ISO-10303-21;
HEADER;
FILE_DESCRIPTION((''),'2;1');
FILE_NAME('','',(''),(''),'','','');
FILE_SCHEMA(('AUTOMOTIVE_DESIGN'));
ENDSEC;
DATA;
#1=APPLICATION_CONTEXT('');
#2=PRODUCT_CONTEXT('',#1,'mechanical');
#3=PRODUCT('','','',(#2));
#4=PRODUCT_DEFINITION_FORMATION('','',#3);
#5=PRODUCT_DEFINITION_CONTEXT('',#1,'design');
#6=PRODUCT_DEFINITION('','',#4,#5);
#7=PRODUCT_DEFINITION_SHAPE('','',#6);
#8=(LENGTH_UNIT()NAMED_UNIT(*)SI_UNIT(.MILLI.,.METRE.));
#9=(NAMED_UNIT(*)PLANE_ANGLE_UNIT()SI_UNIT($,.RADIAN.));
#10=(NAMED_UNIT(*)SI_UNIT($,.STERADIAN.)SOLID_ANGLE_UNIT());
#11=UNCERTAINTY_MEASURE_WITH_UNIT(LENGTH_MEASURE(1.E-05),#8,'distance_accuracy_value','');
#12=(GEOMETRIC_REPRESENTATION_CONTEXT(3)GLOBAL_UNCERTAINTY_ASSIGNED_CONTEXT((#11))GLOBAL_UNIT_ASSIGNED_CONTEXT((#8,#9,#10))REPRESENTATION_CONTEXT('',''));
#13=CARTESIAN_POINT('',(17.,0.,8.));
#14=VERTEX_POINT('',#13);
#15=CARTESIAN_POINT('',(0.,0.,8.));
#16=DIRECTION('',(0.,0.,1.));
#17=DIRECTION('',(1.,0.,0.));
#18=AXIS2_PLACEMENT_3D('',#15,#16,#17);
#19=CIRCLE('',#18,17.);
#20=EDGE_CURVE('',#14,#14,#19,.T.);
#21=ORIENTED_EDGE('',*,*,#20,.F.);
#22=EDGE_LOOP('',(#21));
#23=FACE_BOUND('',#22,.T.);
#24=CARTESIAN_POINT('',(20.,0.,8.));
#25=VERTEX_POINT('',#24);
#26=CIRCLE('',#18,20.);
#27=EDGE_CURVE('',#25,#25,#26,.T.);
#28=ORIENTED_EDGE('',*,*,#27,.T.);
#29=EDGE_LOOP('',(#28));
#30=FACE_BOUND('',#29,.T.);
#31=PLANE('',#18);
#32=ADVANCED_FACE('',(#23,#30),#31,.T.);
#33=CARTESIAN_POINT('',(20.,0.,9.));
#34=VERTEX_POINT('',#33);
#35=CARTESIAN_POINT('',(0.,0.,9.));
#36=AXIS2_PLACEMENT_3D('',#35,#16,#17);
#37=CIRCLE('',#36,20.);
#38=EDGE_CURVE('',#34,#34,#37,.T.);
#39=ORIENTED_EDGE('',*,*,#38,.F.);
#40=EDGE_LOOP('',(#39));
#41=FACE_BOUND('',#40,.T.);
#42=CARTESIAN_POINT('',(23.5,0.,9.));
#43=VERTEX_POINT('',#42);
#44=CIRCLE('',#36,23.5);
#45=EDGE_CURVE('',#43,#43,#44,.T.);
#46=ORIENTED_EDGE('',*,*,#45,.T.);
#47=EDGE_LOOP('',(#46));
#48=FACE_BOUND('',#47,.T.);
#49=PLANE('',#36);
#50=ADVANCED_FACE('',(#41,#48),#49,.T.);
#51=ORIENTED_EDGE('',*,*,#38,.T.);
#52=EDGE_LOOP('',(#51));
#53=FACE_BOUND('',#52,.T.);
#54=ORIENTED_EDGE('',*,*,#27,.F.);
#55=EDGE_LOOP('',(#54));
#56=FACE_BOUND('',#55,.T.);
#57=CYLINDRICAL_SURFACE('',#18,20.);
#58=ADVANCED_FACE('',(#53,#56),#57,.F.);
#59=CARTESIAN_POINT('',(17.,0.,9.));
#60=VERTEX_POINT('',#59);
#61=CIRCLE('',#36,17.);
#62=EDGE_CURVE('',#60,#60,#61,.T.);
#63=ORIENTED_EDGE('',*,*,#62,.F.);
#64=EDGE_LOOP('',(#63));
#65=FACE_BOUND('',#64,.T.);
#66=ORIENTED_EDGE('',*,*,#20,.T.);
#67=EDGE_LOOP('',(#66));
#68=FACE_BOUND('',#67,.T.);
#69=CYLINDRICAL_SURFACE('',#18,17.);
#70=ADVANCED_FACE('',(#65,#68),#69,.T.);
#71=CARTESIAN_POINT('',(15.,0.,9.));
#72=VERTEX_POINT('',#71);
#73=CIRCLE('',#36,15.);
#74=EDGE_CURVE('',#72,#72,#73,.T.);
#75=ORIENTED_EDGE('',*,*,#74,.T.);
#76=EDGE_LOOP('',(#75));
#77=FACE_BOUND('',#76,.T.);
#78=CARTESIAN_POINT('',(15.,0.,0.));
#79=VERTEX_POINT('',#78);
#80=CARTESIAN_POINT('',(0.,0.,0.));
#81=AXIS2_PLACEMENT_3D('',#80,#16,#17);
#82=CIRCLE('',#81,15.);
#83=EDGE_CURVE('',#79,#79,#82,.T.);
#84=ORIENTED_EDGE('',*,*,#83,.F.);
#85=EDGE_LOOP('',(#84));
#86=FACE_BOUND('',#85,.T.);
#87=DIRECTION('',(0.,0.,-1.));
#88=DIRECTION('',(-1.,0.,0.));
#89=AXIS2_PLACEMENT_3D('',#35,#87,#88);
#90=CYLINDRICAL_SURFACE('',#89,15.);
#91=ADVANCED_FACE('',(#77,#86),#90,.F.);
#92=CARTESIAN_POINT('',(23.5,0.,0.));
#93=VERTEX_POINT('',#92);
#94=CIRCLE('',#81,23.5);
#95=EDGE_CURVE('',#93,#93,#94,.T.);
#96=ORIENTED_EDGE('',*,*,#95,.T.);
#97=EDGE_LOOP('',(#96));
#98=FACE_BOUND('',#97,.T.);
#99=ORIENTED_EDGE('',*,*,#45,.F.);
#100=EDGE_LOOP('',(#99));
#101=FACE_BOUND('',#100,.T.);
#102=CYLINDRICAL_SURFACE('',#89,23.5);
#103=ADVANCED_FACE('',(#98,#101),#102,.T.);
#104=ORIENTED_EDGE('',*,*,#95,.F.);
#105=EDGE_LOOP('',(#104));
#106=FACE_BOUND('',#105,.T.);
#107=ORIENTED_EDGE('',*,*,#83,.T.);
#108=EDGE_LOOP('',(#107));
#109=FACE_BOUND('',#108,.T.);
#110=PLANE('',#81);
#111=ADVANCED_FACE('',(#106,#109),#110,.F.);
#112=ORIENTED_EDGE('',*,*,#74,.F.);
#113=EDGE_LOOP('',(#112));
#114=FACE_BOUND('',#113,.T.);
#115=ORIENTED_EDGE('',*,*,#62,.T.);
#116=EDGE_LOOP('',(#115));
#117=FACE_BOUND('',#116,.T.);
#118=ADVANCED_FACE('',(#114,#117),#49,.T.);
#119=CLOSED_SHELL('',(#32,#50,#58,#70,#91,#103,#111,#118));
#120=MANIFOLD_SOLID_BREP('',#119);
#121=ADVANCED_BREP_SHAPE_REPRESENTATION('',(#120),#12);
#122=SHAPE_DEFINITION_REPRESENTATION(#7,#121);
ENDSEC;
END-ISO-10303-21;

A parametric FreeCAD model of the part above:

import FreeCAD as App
import Part
import Sketcher

doc = App.newDocument("Part")
body = doc.addObject("PartDesign::Body", "Body")

sketch1 = body.newObject("Sketcher::SketchObject", "Sketch")
sketch1.AttachmentSupport = (doc.getObject("XY_Plane"), [""])
sketch1.MapMode = "FlatFace"
sketch1.addGeometry([
    Part.Circle(App.Vector(0, 0, 0), App.Vector(0, 0, 1), 24),
    Part.Circle(App.Vector(0, 0, 0), App.Vector(0, 0, 1), 15),
], False)
sketch1.addConstraint([
    Sketcher.Constraint("Coincident", 0, 3, -1, 1),
    Sketcher.Constraint("Coincident", 1, 3, -1, 1),
    Sketcher.Constraint("Diameter", 0, 47.0),
    Sketcher.Constraint("Diameter", 1, 30.0),
])
pad1 = body.newObject("PartDesign::Pad", "Pad")
pad1.Profile = sketch1
pad1.Length = 9

sketch2 = body.newObject("Sketcher::SketchObject", "Sketch001")
sketch2.AttachmentSupport = (doc.getObject("XY_Plane"), [""])
sketch2.MapMode = "FlatFace"
sketch2.AttachmentOffset = App.Placement(App.Vector(0, 0, 9), App.Rotation())
sketch2.addGeometry([
    Part.Circle(App.Vector(0, 0, 0), App.Vector(0, 0, 1), 20),
    Part.Circle(App.Vector(0, 0, 0), App.Vector(0, 0, 1), 17),
], False)
sketch2.addConstraint([
    Sketcher.Constraint("Coincident", 0, 3, -1, 1),
    Sketcher.Constraint("Coincident", 1, 3, -1, 1),
    Sketcher.Constraint("Diameter", 0, 40.0),
    Sketcher.Constraint("Diameter", 1, 34.0),
])
pocket1 = body.newObject("PartDesign::Pocket", "Pocket")
pocket1.Profile = sketch2
pocket1.Length = 1

doc.recompute()
